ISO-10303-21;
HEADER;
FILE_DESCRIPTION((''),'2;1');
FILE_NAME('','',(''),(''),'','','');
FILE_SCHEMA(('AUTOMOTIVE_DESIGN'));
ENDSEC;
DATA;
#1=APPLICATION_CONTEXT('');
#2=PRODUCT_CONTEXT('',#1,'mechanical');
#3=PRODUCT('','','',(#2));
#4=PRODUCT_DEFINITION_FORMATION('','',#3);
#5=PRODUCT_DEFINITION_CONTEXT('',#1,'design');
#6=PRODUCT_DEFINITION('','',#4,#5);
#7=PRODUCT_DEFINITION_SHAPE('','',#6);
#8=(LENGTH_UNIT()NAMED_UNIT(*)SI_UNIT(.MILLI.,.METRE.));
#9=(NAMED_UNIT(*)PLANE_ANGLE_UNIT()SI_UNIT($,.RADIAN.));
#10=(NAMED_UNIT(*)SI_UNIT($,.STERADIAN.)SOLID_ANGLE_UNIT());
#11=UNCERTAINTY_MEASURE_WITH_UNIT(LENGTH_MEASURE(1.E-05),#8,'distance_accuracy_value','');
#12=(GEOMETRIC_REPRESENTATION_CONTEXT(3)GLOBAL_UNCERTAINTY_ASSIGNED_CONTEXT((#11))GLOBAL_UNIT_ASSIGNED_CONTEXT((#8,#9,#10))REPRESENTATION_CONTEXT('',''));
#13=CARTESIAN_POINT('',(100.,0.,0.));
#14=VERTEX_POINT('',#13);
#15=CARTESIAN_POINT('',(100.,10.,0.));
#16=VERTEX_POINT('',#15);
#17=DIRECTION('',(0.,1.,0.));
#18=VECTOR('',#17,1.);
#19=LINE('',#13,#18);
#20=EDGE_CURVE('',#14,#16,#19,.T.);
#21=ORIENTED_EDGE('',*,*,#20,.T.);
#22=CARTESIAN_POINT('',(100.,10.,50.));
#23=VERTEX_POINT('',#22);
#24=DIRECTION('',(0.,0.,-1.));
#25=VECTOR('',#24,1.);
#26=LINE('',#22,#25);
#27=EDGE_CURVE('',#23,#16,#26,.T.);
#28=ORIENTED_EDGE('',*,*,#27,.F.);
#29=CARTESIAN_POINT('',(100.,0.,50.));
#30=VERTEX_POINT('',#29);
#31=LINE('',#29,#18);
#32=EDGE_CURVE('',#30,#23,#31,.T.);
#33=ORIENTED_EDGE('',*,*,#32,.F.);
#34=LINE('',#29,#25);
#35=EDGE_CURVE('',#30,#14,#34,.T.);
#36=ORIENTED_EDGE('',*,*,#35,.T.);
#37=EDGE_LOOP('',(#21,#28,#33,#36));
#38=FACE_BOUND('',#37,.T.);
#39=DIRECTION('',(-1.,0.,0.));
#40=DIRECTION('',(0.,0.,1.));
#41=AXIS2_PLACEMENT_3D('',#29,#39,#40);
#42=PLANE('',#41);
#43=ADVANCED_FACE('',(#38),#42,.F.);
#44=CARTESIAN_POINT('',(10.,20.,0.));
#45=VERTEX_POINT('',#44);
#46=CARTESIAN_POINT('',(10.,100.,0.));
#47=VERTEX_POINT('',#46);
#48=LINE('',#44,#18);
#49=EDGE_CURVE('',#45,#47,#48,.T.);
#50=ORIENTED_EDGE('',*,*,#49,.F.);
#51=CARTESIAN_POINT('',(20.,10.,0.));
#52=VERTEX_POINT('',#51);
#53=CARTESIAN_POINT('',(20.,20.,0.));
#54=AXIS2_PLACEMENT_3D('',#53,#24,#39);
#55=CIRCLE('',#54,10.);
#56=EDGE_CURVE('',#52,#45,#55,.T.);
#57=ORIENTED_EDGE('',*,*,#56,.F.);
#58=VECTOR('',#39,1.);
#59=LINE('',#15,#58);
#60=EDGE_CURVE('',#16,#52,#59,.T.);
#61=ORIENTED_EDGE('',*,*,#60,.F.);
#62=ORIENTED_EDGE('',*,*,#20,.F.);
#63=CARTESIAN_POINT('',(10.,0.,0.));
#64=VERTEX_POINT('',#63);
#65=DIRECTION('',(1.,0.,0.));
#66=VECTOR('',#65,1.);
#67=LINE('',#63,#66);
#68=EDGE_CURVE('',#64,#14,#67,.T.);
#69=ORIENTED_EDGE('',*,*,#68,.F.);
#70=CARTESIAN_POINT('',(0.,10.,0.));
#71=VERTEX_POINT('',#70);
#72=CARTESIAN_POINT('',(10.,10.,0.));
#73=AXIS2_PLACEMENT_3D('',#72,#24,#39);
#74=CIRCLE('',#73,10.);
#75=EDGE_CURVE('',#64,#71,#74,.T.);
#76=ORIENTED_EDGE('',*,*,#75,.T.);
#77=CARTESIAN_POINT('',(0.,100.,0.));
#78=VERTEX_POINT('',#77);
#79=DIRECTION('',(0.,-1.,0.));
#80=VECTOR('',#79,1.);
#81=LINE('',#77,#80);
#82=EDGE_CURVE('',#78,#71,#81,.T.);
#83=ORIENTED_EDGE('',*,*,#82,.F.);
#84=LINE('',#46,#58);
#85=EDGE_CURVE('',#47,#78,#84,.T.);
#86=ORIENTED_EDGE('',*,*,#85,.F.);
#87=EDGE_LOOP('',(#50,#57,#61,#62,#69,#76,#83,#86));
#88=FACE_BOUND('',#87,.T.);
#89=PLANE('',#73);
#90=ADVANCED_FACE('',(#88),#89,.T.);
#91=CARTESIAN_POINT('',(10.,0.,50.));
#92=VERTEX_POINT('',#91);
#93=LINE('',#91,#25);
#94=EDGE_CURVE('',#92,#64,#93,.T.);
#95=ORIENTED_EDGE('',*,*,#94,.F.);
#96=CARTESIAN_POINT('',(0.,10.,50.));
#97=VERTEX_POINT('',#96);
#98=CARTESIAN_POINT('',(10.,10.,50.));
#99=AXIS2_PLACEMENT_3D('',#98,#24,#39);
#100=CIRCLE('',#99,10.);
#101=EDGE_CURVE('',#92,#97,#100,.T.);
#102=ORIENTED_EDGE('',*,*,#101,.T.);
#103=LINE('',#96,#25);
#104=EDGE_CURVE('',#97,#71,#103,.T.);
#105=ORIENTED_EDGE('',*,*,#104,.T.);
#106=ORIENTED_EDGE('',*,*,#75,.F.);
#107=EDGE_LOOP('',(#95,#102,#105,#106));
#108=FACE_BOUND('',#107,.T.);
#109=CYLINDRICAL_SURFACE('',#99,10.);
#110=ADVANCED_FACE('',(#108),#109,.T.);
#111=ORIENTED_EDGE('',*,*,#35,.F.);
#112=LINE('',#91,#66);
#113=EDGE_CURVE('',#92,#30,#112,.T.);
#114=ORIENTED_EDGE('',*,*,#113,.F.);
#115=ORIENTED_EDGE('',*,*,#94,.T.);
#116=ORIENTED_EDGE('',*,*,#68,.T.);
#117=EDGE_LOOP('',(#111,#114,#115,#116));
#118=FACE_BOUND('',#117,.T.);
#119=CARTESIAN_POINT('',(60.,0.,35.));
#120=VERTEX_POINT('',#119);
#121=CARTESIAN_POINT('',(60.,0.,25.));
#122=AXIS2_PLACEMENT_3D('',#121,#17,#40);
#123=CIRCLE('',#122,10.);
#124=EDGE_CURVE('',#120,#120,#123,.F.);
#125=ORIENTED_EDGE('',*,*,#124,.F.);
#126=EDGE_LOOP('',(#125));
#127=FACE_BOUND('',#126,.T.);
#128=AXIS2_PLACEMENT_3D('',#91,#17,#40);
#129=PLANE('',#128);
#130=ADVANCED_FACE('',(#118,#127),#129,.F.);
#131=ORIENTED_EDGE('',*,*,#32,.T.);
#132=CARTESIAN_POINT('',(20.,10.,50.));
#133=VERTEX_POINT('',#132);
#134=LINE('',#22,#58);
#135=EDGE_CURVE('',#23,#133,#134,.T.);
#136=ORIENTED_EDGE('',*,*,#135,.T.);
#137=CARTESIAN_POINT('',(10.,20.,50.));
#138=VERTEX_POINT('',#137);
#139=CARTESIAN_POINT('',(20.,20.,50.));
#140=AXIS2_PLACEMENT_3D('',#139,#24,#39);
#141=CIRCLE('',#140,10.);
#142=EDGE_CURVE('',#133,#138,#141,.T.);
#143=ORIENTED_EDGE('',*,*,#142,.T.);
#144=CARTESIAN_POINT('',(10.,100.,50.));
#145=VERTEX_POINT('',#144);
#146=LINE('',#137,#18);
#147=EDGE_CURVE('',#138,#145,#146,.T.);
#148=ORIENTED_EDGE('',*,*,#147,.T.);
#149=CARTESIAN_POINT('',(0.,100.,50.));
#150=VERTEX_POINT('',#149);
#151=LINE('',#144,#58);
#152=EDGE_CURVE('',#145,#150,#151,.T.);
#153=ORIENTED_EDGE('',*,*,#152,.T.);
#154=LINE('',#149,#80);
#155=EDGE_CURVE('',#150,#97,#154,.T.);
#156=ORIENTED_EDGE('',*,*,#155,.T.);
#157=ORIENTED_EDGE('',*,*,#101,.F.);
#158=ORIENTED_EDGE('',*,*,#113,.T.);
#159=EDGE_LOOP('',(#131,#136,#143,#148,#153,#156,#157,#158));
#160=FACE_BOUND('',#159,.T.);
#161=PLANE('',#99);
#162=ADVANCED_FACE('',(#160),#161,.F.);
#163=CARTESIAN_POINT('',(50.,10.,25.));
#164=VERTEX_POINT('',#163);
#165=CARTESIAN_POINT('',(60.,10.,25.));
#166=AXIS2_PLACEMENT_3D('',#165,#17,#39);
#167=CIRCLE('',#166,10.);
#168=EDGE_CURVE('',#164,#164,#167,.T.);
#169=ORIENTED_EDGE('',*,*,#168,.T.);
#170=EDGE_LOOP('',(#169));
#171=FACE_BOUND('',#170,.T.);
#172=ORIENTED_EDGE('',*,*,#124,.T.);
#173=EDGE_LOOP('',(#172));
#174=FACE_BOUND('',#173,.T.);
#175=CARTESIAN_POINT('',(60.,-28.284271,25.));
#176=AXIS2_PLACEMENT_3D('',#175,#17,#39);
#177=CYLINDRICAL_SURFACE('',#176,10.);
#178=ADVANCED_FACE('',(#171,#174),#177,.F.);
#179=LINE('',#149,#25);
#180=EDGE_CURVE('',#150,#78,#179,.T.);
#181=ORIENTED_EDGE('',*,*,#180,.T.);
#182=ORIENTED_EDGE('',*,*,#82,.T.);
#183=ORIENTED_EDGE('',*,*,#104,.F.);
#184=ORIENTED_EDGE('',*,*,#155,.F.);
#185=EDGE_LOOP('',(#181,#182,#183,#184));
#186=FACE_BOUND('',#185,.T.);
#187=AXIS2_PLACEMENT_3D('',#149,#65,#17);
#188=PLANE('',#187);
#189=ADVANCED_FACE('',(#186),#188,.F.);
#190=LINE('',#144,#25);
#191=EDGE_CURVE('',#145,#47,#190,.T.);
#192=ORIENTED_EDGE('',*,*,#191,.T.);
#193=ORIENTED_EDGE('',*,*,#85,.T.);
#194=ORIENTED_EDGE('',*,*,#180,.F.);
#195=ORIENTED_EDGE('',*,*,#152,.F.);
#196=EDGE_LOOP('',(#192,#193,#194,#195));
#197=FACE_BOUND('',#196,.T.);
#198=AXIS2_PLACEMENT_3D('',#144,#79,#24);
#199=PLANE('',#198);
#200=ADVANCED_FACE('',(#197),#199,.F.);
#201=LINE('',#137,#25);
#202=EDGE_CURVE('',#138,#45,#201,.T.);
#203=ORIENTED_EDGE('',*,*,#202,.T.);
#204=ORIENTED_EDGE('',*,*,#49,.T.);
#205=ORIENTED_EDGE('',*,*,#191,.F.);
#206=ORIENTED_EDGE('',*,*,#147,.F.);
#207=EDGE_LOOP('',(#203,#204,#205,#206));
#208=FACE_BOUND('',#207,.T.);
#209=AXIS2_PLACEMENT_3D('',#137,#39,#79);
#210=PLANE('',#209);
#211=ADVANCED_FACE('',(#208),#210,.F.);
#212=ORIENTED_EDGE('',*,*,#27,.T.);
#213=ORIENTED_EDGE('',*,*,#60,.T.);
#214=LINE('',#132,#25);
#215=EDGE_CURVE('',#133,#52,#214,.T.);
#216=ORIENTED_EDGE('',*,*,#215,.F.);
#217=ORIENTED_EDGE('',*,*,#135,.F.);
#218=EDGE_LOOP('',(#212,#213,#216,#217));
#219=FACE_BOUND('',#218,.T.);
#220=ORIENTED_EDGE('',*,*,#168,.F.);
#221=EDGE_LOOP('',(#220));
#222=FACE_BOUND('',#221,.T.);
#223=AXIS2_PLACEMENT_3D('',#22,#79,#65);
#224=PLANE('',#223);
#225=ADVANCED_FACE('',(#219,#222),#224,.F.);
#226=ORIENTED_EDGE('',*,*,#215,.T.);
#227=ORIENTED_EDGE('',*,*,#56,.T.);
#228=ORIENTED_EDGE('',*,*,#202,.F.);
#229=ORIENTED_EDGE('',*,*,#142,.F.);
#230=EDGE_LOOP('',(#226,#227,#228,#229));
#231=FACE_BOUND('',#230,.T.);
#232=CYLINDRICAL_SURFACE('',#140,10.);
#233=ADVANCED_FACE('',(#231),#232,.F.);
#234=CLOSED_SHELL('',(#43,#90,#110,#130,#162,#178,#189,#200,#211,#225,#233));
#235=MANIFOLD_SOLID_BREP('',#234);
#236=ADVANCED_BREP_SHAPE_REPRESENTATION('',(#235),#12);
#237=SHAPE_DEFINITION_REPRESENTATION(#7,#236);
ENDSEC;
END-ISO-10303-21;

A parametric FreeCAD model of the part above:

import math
import FreeCAD as App
import Part
import Sketcher
from FreeCAD import Vector
Q = App.Units.Quantity

doc = App.newDocument("Part")
body = doc.addObject("PartDesign::Body", "Body")

sketch1 = doc.addObject("Sketcher::SketchObject", "Sketch")
body.addObject(sketch1)
sketch1.AttachmentSupport = (doc.XY_Plane, [""])
sketch1.MapMode = "FlatFace"
sketch1.addGeometry(Part.LineSegment(Vector(10, 0, 0), Vector(100, 0, 0)), False)
sketch1.addGeometry(Part.LineSegment(Vector(100, 0, 0), Vector(100, 10, 0)), False)
sketch1.addGeometry(Part.LineSegment(Vector(100, 10, 0), Vector(20, 10, 0)), False)
sketch1.addGeometry(Part.ArcOfCircle(Part.Circle(Vector(20, 20, 0), Vector(0, 0, 1), 10), math.radians(180), math.radians(270)), False)
sketch1.addGeometry(Part.LineSegment(Vector(10, 20, 0), Vector(10, 100, 0)), False)
sketch1.addGeometry(Part.LineSegment(Vector(10, 100, 0), Vector(0, 100, 0)), False)
sketch1.addGeometry(Part.LineSegment(Vector(0, 100, 0), Vector(0, 10, 0)), False)
sketch1.addGeometry(Part.ArcOfCircle(Part.Circle(Vector(10, 10, 0), Vector(0, 0, 1), 10), math.radians(180), math.radians(270)), False)
sketch1.addConstraint(Sketcher.Constraint("Coincident", 0, 2, 1, 1))
sketch1.addConstraint(Sketcher.Constraint("Coincident", 1, 2, 2, 1))
sketch1.addConstraint(Sketcher.Constraint("Tangent", 2, 2, 3, 2))
sketch1.addConstraint(Sketcher.Constraint("Tangent", 3, 1, 4, 1))
sketch1.addConstraint(Sketcher.Constraint("Coincident", 4, 2, 5, 1))
sketch1.addConstraint(Sketcher.Constraint("Coincident", 5, 2, 6, 1))
sketch1.addConstraint(Sketcher.Constraint("Tangent", 6, 2, 7, 1))
sketch1.addConstraint(Sketcher.Constraint("Tangent", 7, 2, 0, 1))
sketch1.addConstraint(Sketcher.Constraint("Horizontal", 0))
sketch1.addConstraint(Sketcher.Constraint("Vertical", 1))
sketch1.addConstraint(Sketcher.Constraint("Horizontal", 2))
sketch1.addConstraint(Sketcher.Constraint("Vertical", 4))
sketch1.addConstraint(Sketcher.Constraint("Horizontal", 5))
sketch1.addConstraint(Sketcher.Constraint("Vertical", 6))
sketch1.addConstraint(Sketcher.Constraint("Equal", 3, 7))
sketch1.addConstraint(Sketcher.Constraint("PointOnObject", 0, 2, -1))
sketch1.addConstraint(Sketcher.Constraint("PointOnObject", 5, 2, -2))
sketch1.addConstraint(Sketcher.Constraint("Horizontal", 7, 3, 1, 2))
sketch1.addConstraint(Sketcher.Constraint("Vertical", 7, 3, 3, 1))
sketch1.addConstraint(Sketcher.Constraint("Equal", 2, 4))
sketch1.addConstraint(Sketcher.Constraint("Radius", 3, Q("10 mm")))
sketch1.addConstraint(Sketcher.Constraint("DistanceX", 0, 1, 0, 2, Q("90 mm")))
pad1 = doc.addObject("PartDesign::Pad", "Pad")
body.addObject(pad1)
pad1.Profile = sketch1
pad1.Length = 50

sketch2 = doc.addObject("Sketcher::SketchObject", "Sketch001")
body.addObject(sketch2)
sketch2.AttachmentSupport = (doc.XZ_Plane, [""])
sketch2.MapMode = "FlatFace"
sketch2.AttachmentOffset = App.Placement(Vector(0, 0, -10), App.Rotation())
sketch2.addGeometry(Part.Circle(Vector(60, 25, 0), Vector(0, 0, 1), 10), False)
sketch2.addConstraint(Sketcher.Constraint("Diameter", 0, Q("20 mm")))
sketch2.addConstraint(Sketcher.Constraint("DistanceX", -1, 1, 0, 3, Q("60 mm")))
sketch2.addConstraint(Sketcher.Constraint("DistanceY", -1, 1, 0, 3, Q("25 mm")))
pocket1 = doc.addObject("PartDesign::Pocket", "Pocket")
body.addObject(pocket1)
pocket1.Profile = sketch2
pocket1.Length = 10
pocket1.Reversed = True

doc.recompute()
